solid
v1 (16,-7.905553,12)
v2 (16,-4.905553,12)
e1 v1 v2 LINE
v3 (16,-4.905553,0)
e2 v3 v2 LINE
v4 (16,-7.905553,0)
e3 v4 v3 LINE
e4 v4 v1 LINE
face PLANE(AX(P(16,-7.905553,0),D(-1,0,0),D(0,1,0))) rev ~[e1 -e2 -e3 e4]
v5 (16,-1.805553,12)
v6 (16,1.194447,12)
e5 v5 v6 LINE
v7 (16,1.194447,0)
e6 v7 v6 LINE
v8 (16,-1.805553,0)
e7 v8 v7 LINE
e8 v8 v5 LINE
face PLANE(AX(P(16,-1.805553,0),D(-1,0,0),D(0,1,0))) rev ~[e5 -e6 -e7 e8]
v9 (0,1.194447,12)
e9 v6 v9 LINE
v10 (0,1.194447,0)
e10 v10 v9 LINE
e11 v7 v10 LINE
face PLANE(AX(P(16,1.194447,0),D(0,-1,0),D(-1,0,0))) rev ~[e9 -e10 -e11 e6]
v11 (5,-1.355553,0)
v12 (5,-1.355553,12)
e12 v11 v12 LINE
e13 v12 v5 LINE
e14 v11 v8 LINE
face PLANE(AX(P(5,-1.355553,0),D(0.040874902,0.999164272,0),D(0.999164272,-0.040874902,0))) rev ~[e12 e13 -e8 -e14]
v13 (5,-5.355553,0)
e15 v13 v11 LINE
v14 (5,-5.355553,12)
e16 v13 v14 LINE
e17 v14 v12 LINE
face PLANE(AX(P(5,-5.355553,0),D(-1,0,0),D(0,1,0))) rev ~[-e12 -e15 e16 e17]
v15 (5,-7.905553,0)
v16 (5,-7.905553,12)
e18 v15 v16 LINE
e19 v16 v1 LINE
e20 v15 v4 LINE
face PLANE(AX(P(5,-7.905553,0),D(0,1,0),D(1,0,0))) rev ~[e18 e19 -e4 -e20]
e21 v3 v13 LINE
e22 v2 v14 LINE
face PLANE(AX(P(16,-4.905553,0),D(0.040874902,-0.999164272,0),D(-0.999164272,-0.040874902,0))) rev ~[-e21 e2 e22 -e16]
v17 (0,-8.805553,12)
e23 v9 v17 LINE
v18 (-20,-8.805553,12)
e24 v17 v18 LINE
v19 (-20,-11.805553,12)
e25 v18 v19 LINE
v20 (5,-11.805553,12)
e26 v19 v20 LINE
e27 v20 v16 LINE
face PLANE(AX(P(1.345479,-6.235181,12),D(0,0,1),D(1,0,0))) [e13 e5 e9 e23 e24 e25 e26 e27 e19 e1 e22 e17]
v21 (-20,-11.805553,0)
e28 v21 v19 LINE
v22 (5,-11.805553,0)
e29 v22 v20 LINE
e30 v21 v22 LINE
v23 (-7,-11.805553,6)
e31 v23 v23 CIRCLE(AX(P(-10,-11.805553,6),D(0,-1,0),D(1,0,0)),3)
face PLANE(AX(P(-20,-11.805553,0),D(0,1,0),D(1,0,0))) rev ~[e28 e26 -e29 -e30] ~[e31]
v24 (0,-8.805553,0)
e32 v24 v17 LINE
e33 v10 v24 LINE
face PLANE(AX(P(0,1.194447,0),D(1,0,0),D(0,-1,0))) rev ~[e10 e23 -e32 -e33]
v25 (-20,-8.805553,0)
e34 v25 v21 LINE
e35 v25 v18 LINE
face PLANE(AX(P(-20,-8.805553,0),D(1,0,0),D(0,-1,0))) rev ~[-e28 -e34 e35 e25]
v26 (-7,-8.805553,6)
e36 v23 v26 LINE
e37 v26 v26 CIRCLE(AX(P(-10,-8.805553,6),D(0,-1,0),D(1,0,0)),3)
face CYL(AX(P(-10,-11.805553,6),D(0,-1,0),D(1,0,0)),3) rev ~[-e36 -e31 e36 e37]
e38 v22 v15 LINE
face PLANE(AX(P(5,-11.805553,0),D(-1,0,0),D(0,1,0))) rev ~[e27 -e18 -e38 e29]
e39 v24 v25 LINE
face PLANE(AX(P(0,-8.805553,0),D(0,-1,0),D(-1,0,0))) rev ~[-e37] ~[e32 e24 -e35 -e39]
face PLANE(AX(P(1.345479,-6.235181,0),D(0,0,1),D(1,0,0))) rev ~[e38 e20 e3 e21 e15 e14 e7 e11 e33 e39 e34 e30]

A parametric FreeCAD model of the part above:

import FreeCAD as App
import Part
import Sketcher


def add_polygon(sketch, points):
    """Adds a closed chain of lines whose ends are joined by coincident constraints."""
    first, n = sketch.GeometryCount, len(points)
    for a, b in zip(points, points[1:] + points[:1]):
        sketch.addGeometry(Part.LineSegment(App.Vector(*a, 0), App.Vector(*b, 0)), False)
    for i in range(n):
        sketch.addConstraint(Sketcher.Constraint("Coincident", first + i, 2, first + (i + 1) % n, 1))

doc = App.newDocument("Part")
params = doc.addObject("Spreadsheet::Sheet", "Params")
for row, (alias, value) in enumerate([
    ("sketch1_width", "25 mm"),
    ("sketch1_width2", "11 mm"),
    ("sketch1_width3", "16 mm"),
    ("sketch1_height", "3 mm"),
    ("sketch1_height2", "4 mm"),
    ("pad1_length", "12 mm"),
    ("sketch2_diameter", "6 mm"),
    ("pocket1_length", "25 mm"),
], start=1):
    params.set(f"A{row}", alias)
    params.set(f"B{row}", "=" + value)
    params.setAlias(f"B{row}", alias)

body = doc.addObject("PartDesign::Body", "Body")

sketch1 = body.newObject("Sketcher::SketchObject", "Sketch")
sketch1.AttachmentSupport = (doc.getObject("XY_Plane"), [""])
sketch1.MapMode = "FlatFace"
add_polygon(sketch1, [(-20, -11.8), (5, -11.8), (5, -7.9), (16, -7.9), (16, -4.9), (5, -5.4), (5, -1.4), (16, -1.8), (16, 1.2), (0, 1.2), (0, -8.8), (-20, -8.8)])
sketch1.addConstraint([
    Sketcher.Constraint("Horizontal", 0),
    Sketcher.Constraint("Vertical", 1),
    Sketcher.Constraint("Horizontal", 2),
    Sketcher.Constraint("Vertical", 3),
    Sketcher.Constraint("Vertical", 5),
    Sketcher.Constraint("Vertical", 7),
    Sketcher.Constraint("Horizontal", 8),
    Sketcher.Constraint("Vertical", 9),
    Sketcher.Constraint("Horizontal", 10),
    Sketcher.Constraint("Vertical", 11),
    Sketcher.Constraint("PointOnObject", 8, 2, -2),
    Sketcher.Constraint("Vertical", 1, 2, 4, 2),
    Sketcher.Constraint("Vertical", 3, 2, 6, 2),
    Sketcher.Constraint("Equal", 3, 7),
    Sketcher.Constraint("Equal", 7, 11),
    Sketcher.Constraint("Equal", 4, 6),
    Sketcher.Constraint("DistanceX", 0, 1, 0, 2, 25.0),
    Sketcher.Constraint("DistanceX", 2, 1, 2, 2, 11.0),
    Sketcher.Constraint("DistanceX", 8, 2, 8, 1, 16.0),
    Sketcher.Constraint("DistanceY", 3, 1, 3, 2, 3.0),
    Sketcher.Constraint("DistanceY", 5, 1, 5, 2, 4.0),
    Sketcher.Constraint("DistanceY", 9, 2, 9, 1, 10.0),
    Sketcher.Constraint("DistanceY", 1, 1, 1, 2, 3.9),
    Sketcher.Constraint("DistanceY", 0, 2, -1, 1, 11.805553),
])
sketch1.setExpression("Constraints[28]", "Params.sketch1_width")
sketch1.setExpression("Constraints[29]", "Params.sketch1_width2")
sketch1.setExpression("Constraints[30]", "Params.sketch1_width3")
sketch1.setExpression("Constraints[31]", "Params.sketch1_height")
sketch1.setExpression("Constraints[32]", "Params.sketch1_height2")
pad1 = body.newObject("PartDesign::Pad", "Pad")
pad1.Profile = sketch1
pad1.setExpression("Length", "Params.pad1_length")

sketch2 = body.newObject("Sketcher::SketchObject", "Sketch001")
sketch2.AttachmentSupport = (doc.getObject("XZ_Plane"), [""])
sketch2.MapMode = "FlatFace"
sketch2.AttachmentOffset = App.Placement(App.Vector(0, 0, 11.805553), App.Rotation())
sketch2.addGeometry(Part.Circle(App.Vector(-10, 6, 0), App.Vector(0, 0, 1), 3), False)
sketch2.addConstraint([
    Sketcher.Constraint("Diameter", 0, 6.0),
    Sketcher.Constraint("DistanceX", 0, 3, -1, 1, 10.0),
    Sketcher.Constraint("DistanceY", -1, 1, 0, 3, 6.0),
])
sketch2.setExpression("Constraints[0]", "Params.sketch2_diameter")
pocket1 = body.newObject("PartDesign::Pocket", "Pocket")
pocket1.Profile = sketch2
pocket1.setExpression("Length", "Params.pocket1_length")

doc.recompute()
